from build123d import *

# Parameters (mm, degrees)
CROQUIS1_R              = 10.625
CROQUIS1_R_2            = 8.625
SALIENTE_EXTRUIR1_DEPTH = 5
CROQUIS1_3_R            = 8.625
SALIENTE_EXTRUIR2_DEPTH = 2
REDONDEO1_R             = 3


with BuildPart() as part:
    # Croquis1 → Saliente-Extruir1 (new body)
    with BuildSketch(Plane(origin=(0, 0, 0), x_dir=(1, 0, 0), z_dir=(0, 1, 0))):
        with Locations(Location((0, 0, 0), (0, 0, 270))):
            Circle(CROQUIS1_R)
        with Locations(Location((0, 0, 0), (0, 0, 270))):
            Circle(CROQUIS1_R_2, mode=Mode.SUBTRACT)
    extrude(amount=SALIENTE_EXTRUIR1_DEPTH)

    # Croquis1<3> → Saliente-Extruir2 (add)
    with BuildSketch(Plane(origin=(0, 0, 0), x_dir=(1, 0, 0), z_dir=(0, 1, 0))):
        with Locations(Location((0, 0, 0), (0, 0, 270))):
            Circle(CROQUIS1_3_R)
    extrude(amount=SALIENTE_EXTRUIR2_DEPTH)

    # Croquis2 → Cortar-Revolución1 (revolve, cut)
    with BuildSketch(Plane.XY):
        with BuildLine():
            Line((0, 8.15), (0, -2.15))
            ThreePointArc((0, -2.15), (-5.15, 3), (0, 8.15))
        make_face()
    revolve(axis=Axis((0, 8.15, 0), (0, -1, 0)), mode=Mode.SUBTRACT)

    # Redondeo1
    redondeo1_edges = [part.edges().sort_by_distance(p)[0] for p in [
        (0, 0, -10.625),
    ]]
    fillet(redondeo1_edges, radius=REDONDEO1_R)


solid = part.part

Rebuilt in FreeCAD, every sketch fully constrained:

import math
import FreeCAD as App
import Part
import Sketcher


def edges_at(feature, points):
    """Names of the edges that pass closest to the given points."""
    edges = feature.Shape.Edges
    near = lambda p: min(range(len(edges)), key=lambda i: edges[i].distToShape(Part.Vertex(*p))[0])
    return sorted({f"Edge{near(p) + 1}" for p in points})

doc = App.newDocument("Part")
body = doc.addObject("PartDesign::Body", "Body")

sketch1 = body.newObject("Sketcher::SketchObject", "Sketch")
sketch1.AttachmentSupport = (doc.getObject("XZ_Plane"), [""])
sketch1.MapMode = "FlatFace"
sketch1.addGeometry([
    Part.Circle(App.Vector(0, 0, 0), App.Vector(0, 0, 1), 10.625),
    Part.Circle(App.Vector(0, 0, 0), App.Vector(0, 0, 1), 8.625),
], False)
sketch1.addConstraint([
    Sketcher.Constraint("Coincident", 0, 3, -1, 1),
    Sketcher.Constraint("Coincident", 1, 3, -1, 1),
    Sketcher.Constraint("Diameter", 0, 21.25),
    Sketcher.Constraint("Diameter", 1, 17.25),
])
pad1 = body.newObject("PartDesign::Pad", "Pad")
pad1.Profile = sketch1
pad1.Length = 5
pad1.Reversed = True

sketch2 = body.newObject("Sketcher::SketchObject", "Sketch001")
sketch2.AttachmentSupport = (doc.getObject("XZ_Plane"), [""])
sketch2.MapMode = "FlatFace"
sketch2.addGeometry(Part.Circle(App.Vector(0, 0, 0), App.Vector(0, 0, 1), 8.625), False)
sketch2.addConstraint([
    Sketcher.Constraint("Coincident", 0, 3, -1, 1),
    Sketcher.Constraint("Diameter", 0, 17.25),
])
pad2 = body.newObject("PartDesign::Pad", "Pad001")
pad2.Profile = sketch2
pad2.Length = 2
pad2.Reversed = True

sketch3 = body.newObject("Sketcher::SketchObject", "Sketch002")
sketch3.AttachmentSupport = (doc.getObject("XY_Plane"), [""])
sketch3.MapMode = "FlatFace"
sketch3.addGeometry([
    Part.LineSegment(App.Vector(0, -2.15, 0), App.Vector(0, 8.15, 0)),
    Part.ArcOfCircle(Part.Circle(App.Vector(0, 3, 0), App.Vector(0, 0, 1), 5.15), math.radians(90), math.radians(270)),
], False)
sketch3.addConstraint([
    Sketcher.Constraint("Coincident", 0, 1, 1, 2),
    Sketcher.Constraint("Coincident", 1, 1, 0, 2),
    Sketcher.Constraint("Vertical", 0),
    Sketcher.Constraint("PointOnObject", 1, 3, -2),
    Sketcher.Constraint("PointOnObject", 0, 1, -2),
    Sketcher.Constraint("Radius", 1, 5.15),
    Sketcher.Constraint("DistanceY", -1, 1, 1, 3, 3.0),
])
groove = body.newObject("PartDesign::Groove", "Groove")
groove.Profile = sketch3
groove.ReferenceAxis = (sketch3, ["V_Axis"])
groove.Angle = 360
doc.recompute()

fillet = body.newObject("PartDesign::Fillet", "Fillet")
fillet.Base = (groove, edges_at(groove, [(0, 0, -10.625)]))
fillet.Radius = 3

doc.recompute()
